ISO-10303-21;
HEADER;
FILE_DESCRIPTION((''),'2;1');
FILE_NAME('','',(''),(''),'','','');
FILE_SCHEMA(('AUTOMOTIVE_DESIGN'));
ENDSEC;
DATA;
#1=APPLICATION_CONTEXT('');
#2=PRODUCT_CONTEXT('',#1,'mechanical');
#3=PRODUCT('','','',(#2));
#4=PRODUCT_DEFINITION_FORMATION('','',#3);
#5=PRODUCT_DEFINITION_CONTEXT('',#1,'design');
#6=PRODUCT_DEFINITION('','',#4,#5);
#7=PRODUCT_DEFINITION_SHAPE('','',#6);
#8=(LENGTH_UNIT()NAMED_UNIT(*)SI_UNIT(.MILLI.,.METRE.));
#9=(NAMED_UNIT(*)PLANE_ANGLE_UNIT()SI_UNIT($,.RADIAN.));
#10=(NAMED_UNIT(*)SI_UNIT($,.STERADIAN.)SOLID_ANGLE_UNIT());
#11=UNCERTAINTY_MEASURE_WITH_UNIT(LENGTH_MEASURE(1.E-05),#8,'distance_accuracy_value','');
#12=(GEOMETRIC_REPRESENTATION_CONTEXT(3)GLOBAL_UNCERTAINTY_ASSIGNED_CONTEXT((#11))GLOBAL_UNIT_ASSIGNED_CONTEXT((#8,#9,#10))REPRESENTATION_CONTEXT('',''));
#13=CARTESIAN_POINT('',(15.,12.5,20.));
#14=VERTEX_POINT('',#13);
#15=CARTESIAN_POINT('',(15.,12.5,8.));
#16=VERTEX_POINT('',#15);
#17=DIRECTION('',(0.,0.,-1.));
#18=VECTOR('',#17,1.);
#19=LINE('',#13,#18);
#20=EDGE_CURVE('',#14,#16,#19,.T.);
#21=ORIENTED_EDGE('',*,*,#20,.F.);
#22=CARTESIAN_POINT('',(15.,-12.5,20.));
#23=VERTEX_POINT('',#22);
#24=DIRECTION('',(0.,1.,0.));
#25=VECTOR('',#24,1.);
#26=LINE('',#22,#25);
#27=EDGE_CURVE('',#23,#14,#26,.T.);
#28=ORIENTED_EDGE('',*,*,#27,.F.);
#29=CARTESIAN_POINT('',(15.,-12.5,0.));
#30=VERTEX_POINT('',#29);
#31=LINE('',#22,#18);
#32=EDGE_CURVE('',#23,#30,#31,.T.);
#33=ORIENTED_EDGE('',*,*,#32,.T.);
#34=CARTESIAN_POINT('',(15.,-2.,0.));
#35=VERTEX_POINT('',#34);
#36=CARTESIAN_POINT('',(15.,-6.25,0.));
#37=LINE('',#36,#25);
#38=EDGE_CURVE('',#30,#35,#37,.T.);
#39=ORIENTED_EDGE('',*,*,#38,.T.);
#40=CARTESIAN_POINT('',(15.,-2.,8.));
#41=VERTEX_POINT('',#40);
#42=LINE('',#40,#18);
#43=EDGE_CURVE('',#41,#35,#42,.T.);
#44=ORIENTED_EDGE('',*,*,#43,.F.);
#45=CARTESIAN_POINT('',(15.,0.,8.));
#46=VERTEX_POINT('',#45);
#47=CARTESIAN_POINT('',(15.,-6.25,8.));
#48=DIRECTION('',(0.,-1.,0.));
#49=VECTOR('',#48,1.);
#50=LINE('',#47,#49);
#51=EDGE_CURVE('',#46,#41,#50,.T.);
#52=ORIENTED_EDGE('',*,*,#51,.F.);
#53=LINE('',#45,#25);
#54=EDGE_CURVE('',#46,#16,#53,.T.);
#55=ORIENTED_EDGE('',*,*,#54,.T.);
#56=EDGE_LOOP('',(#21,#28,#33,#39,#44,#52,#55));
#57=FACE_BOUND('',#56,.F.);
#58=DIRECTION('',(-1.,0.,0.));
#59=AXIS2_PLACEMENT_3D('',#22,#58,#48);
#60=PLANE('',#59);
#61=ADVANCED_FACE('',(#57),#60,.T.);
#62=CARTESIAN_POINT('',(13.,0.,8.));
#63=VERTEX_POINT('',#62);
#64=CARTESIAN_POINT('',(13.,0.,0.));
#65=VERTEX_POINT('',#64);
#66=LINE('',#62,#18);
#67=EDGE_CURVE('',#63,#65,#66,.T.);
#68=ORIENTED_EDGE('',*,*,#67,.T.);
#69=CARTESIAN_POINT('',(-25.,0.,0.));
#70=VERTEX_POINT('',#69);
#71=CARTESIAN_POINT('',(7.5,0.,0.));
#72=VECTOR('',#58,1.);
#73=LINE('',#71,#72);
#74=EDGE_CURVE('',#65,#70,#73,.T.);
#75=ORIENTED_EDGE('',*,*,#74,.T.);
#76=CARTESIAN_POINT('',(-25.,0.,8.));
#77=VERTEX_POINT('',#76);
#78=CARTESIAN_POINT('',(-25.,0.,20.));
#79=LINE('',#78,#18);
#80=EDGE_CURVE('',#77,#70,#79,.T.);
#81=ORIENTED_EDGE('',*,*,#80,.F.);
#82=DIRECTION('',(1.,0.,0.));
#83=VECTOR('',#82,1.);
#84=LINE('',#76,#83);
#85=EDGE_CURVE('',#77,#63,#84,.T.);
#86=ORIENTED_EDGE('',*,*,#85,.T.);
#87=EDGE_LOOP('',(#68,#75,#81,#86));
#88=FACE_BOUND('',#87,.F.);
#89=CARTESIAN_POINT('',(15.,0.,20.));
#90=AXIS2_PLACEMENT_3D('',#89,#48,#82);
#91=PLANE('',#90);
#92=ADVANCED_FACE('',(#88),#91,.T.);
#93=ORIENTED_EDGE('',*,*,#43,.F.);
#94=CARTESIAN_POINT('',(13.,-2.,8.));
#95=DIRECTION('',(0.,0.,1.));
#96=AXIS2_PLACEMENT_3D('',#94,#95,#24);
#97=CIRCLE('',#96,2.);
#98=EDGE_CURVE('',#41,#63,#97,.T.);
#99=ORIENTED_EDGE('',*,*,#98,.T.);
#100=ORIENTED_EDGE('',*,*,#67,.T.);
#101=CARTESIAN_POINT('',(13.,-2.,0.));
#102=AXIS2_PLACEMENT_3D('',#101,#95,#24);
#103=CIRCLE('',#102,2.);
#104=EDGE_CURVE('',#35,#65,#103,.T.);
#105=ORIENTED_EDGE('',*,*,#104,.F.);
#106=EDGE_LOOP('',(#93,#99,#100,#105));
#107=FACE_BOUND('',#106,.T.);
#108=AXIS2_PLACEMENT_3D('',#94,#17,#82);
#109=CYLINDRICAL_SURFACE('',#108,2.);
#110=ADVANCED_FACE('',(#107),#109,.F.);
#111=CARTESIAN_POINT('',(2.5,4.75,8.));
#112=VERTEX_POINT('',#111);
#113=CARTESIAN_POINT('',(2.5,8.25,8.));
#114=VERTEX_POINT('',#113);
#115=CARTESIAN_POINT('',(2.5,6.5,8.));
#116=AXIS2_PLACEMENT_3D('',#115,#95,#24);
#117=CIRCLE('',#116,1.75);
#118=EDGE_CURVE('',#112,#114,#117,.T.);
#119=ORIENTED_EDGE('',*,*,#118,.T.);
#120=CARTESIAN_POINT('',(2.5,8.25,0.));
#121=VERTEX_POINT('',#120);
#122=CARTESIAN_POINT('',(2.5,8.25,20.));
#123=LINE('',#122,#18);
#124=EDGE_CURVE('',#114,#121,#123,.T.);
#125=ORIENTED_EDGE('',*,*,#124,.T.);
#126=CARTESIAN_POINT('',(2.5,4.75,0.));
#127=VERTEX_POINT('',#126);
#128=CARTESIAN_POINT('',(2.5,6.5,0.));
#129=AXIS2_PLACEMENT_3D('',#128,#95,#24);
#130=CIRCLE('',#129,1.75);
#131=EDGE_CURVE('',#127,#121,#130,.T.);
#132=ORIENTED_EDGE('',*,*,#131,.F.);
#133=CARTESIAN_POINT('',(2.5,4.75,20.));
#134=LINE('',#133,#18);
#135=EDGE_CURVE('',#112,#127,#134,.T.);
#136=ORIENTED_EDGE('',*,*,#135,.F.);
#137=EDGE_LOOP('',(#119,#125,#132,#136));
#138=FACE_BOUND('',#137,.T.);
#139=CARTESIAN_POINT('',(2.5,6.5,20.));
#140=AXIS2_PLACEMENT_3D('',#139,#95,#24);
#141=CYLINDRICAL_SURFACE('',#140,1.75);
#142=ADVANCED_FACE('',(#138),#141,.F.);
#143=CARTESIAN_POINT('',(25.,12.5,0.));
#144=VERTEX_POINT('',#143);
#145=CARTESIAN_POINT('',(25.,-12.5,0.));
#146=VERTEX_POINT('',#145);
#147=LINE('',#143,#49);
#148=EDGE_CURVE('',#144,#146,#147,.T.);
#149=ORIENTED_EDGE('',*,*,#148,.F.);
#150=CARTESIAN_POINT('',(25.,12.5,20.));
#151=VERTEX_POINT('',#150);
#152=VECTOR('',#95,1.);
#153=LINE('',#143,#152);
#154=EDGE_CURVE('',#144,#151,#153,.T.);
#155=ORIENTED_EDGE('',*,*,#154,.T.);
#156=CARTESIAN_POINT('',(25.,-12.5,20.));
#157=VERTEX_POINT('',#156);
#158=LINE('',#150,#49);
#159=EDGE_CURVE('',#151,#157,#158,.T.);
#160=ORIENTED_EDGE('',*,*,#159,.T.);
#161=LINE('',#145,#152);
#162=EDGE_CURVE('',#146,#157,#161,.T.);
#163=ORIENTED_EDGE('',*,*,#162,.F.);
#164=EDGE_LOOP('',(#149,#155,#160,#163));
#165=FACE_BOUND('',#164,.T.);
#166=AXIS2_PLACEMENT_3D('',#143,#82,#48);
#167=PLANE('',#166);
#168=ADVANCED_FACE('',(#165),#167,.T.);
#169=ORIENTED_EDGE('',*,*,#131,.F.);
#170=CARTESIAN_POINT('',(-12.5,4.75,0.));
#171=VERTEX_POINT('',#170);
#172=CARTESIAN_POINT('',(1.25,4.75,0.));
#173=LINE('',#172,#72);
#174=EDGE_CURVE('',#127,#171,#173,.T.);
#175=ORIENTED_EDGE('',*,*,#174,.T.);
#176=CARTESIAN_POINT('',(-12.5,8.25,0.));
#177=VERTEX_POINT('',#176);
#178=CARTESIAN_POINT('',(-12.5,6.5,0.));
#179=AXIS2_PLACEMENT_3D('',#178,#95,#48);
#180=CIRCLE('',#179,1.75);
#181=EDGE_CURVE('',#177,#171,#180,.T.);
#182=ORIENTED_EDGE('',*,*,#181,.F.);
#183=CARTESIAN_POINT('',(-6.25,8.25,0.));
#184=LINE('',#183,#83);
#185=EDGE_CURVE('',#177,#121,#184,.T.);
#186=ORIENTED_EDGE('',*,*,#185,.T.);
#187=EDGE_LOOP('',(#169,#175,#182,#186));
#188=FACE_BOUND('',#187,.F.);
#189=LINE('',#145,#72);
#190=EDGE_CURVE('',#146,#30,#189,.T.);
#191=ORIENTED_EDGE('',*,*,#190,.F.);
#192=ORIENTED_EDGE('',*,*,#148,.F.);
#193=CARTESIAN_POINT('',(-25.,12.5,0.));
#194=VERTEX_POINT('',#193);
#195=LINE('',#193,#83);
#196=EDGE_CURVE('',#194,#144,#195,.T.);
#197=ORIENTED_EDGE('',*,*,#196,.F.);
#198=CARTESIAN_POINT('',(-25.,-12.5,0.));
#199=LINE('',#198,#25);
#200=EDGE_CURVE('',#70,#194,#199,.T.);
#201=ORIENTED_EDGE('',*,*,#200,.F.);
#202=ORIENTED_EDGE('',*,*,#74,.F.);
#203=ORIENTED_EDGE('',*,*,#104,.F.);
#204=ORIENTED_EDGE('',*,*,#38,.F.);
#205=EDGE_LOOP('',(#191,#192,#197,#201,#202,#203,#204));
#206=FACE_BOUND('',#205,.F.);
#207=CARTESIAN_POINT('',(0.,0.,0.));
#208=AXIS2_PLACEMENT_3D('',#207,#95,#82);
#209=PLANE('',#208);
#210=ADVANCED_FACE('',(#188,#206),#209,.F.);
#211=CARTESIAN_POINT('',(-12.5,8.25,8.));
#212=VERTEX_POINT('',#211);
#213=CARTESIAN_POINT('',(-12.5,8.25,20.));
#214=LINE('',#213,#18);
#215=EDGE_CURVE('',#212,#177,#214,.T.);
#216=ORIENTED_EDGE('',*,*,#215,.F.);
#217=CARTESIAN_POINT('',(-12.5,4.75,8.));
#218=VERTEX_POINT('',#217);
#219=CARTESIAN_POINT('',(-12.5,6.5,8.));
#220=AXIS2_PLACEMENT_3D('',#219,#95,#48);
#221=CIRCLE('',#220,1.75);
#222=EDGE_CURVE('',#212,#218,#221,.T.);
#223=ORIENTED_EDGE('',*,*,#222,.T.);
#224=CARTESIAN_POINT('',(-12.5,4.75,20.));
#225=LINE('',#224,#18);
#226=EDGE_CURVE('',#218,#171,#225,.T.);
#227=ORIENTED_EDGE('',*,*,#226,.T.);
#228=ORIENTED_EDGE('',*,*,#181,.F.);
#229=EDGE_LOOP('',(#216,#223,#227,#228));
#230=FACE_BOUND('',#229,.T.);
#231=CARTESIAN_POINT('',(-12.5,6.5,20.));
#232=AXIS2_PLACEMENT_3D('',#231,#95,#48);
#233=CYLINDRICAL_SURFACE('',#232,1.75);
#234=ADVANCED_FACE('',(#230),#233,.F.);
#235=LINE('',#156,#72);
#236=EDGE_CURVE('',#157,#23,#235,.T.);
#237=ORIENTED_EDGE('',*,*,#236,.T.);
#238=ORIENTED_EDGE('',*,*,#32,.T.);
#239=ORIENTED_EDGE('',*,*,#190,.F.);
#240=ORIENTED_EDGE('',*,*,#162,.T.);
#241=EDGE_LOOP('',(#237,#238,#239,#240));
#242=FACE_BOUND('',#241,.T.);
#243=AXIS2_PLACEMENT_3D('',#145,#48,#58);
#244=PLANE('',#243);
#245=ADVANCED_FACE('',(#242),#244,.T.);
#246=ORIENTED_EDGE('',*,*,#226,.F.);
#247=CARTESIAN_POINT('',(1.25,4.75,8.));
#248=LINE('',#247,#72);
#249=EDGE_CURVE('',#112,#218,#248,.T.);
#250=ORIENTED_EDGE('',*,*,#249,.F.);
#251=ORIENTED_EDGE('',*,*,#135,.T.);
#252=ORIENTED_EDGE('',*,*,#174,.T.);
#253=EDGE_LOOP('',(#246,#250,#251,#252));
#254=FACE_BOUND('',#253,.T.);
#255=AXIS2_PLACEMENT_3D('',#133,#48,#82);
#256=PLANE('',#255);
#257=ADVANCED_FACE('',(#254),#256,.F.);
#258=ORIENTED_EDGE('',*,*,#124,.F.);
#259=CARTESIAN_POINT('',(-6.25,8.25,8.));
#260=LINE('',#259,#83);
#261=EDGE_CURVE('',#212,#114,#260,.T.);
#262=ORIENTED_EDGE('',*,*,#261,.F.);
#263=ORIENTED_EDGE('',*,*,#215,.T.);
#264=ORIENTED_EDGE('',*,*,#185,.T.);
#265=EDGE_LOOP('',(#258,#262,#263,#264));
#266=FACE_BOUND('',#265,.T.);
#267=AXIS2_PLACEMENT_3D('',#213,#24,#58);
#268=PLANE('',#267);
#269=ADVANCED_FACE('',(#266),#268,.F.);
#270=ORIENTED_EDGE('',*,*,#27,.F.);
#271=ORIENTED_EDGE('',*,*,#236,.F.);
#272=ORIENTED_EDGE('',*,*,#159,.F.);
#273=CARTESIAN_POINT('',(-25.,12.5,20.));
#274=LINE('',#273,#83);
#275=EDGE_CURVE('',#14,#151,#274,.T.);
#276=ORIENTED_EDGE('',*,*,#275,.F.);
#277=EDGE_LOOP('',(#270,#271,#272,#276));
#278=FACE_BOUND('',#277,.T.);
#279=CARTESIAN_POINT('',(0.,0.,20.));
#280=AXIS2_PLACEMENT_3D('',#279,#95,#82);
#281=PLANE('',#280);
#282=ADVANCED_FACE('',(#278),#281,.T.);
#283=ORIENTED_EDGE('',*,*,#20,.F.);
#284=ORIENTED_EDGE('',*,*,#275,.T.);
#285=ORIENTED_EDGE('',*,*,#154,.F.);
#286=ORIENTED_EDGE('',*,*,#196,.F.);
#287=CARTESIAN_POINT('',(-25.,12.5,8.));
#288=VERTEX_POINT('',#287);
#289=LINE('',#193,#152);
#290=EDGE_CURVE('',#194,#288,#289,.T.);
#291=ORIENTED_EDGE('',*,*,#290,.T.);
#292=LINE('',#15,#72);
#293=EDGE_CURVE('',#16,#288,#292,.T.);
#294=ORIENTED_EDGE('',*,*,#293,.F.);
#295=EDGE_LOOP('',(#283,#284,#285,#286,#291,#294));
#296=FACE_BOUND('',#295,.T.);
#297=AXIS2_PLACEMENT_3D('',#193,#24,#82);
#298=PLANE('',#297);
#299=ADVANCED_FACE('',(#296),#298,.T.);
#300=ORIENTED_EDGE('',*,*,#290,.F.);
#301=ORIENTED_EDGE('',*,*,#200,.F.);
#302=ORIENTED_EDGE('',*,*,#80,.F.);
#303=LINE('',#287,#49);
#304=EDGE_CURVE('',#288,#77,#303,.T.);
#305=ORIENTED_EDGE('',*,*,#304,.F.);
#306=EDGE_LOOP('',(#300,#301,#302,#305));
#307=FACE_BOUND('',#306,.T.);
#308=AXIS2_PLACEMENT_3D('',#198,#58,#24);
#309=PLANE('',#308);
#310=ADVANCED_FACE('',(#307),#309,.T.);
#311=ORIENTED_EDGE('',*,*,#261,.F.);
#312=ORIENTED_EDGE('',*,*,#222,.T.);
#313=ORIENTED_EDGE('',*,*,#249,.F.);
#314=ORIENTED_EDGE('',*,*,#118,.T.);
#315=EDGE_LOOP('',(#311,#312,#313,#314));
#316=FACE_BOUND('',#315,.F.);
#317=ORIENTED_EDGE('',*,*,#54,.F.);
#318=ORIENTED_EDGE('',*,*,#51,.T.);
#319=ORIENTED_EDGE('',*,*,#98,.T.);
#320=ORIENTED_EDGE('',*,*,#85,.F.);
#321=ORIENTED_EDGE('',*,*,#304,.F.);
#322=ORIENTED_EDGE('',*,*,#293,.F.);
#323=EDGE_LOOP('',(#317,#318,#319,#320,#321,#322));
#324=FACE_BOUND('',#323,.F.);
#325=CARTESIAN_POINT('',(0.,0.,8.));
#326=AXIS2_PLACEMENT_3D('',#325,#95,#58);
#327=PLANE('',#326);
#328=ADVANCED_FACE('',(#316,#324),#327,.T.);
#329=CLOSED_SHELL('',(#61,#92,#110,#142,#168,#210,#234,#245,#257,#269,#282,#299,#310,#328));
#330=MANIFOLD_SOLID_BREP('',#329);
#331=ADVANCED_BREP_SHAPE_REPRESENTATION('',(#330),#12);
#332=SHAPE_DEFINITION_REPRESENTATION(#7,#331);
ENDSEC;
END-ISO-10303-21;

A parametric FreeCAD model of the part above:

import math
import FreeCAD as App
import Part
import Sketcher
from FreeCAD import Vector


def edges_at(feature, points):
    """Names of the edges that pass closest to the given points."""
    edges = feature.Shape.Edges
    near = lambda p: min(range(len(edges)), key=lambda i: edges[i].distToShape(Part.Vertex(*p))[0])
    return sorted({f"Edge{near(p) + 1}" for p in points})


def add_polygon(sketch, points):
    """Adds a closed chain of lines whose ends are joined by coincident constraints."""
    first, n = sketch.GeometryCount, len(points)
    for a, b in zip(points, points[1:] + points[:1]):
        sketch.addGeometry(Part.LineSegment(App.Vector(*a, 0), App.Vector(*b, 0)), False)
    for i in range(n):
        sketch.addConstraint(Sketcher.Constraint("Coincident", first + i, 2, first + (i + 1) % n, 1))

doc = App.newDocument("Part")
body = doc.addObject("PartDesign::Body", "Body")

# Sketch on XY plane
sketch1 = doc.addObject("Sketcher::SketchObject", "Sketch")
body.addObject(sketch1)
sketch1.AttachmentSupport = (doc.XY_Plane, [""])
sketch1.MapMode = "FlatFace"
add_polygon(sketch1, [(25, 12.5), (-25, 12.5), (-25, -12.5), (25, -12.5)])  # lines 0-3
sketch1.addConstraint(Sketcher.Constraint("Horizontal", 0))
sketch1.addConstraint(Sketcher.Constraint("Vertical", 1))
sketch1.addConstraint(Sketcher.Constraint("Horizontal", 2))
sketch1.addConstraint(Sketcher.Constraint("Vertical", 3))
sketch1.addConstraint(Sketcher.Constraint("Symmetric", 0, 2, 2, 2, -1, 1))
sketch1.addConstraint(Sketcher.Constraint("DistanceX", 0, 2, 0, 1, 50.0))
sketch1.addConstraint(Sketcher.Constraint("DistanceY", 1, 2, 1, 1, 25.0))
pad1 = doc.addObject("PartDesign::Pad", "Pad")
body.addObject(pad1)
pad1.Profile = sketch1
pad1.Length = 20

# Sketch on XY plane
sketch2 = doc.addObject("Sketcher::SketchObject", "Sketch001")
body.addObject(sketch2)
sketch2.AttachmentSupport = (doc.XY_Plane, [""])
sketch2.MapMode = "FlatFace"
sketch2.AttachmentOffset = App.Placement(Vector(0, 0, 20), App.Rotation())
sketch2.addGeometry(Part.ArcOfCircle(Part.Circle(Vector(2.5, -6.5, 0), Vector(0, 0, 1), 1.75), math.radians(-90), math.radians(90)), False)
sketch2.addGeometry(Part.LineSegment(Vector(2.5, -4.75, 0), Vector(-12.5, -4.75, 0)), False)
sketch2.addGeometry(Part.ArcOfCircle(Part.Circle(Vector(-12.5, -6.5, 0), Vector(0, 0, 1), 1.75), math.radians(90), math.radians(270)), False)
sketch2.addGeometry(Part.LineSegment(Vector(-12.5, -8.25, 0), Vector(2.5, -8.25, 0)), False)
sketch2.addConstraint(Sketcher.Constraint("Tangent", 0, 2, 1, 1))
sketch2.addConstraint(Sketcher.Constraint("Tangent", 1, 2, 2, 1))
sketch2.addConstraint(Sketcher.Constraint("Tangent", 2, 2, 3, 1))
sketch2.addConstraint(Sketcher.Constraint("Tangent", 3, 2, 0, 1))
sketch2.addConstraint(Sketcher.Constraint("Horizontal", 1))
sketch2.addConstraint(Sketcher.Constraint("Horizontal", 3))
sketch2.addConstraint(Sketcher.Constraint("DistanceX", 1, 2, 1, 1, 15.0))
sketch2.addConstraint(Sketcher.Constraint("Radius", 0, 1.75))
sketch2.addConstraint(Sketcher.Constraint("DistanceX", -1, 1, 0, 3, 2.5))
sketch2.addConstraint(Sketcher.Constraint("DistanceY", 0, 3, -1, 1, 6.5))
pocket1 = doc.addObject("PartDesign::Pocket", "Pocket")
body.addObject(pocket1)
pocket1.Profile = sketch2
pocket1.Type = "ThroughAll"

# Sketch on XY plane
sketch3 = doc.addObject("Sketcher::SketchObject", "Sketch002")
body.addObject(sketch3)
sketch3.AttachmentSupport = (doc.XY_Plane, [""])
sketch3.MapMode = "FlatFace"
sketch3.AttachmentOffset = App.Placement(Vector(0, 0, 20), App.Rotation())
add_polygon(sketch3, [(-25, 0), (15, 0), (15, 12.5), (-25, 12.5)])  # lines 0-3
sketch3.addConstraint(Sketcher.Constraint("Horizontal", 0))
sketch3.addConstraint(Sketcher.Constraint("Vertical", 1))
sketch3.addConstraint(Sketcher.Constraint("Horizontal", 2))
sketch3.addConstraint(Sketcher.Constraint("Vertical", 3))
sketch3.addConstraint(Sketcher.Constraint("PointOnObject", 0, 2, -1))
sketch3.addConstraint(Sketcher.Constraint("DistanceX", 0, 1, 0, 2, 40.0))
sketch3.addConstraint(Sketcher.Constraint("DistanceY", 1, 1, 1, 2, 12.5))
sketch3.addConstraint(Sketcher.Constraint("DistanceX", -1, 1, 0, 2, 15.0))
pocket2 = doc.addObject("PartDesign::Pocket", "Pocket001")
body.addObject(pocket2)
pocket2.Profile = sketch3
pocket2.Type = "ThroughAll"

# Sketch on XY plane
sketch4 = doc.addObject("Sketcher::SketchObject", "Sketch003")
body.addObject(sketch4)
sketch4.AttachmentSupport = (doc.XY_Plane, [""])
sketch4.MapMode = "FlatFace"
sketch4.AttachmentOffset = App.Placement(Vector(0, 0, 20), App.Rotation())
add_polygon(sketch4, [(-25, -12.5), (15, -12.5), (15, 0), (-25, 0)])  # lines 0-3
sketch4.addConstraint(Sketcher.Constraint("Horizontal", 0))
sketch4.addConstraint(Sketcher.Constraint("Vertical", 1))
sketch4.addConstraint(Sketcher.Constraint("Horizontal", 2))
sketch4.addConstraint(Sketcher.Constraint("Vertical", 3))
sketch4.addConstraint(Sketcher.Constraint("PointOnObject", 1, 2, -1))
sketch4.addConstraint(Sketcher.Constraint("DistanceX", 0, 1, 0, 2, 40.0))
sketch4.addConstraint(Sketcher.Constraint("DistanceY", 1, 1, 1, 2, 12.5))
sketch4.addConstraint(Sketcher.Constraint("DistanceX", -1, 1, 0, 2, 15.0))
pocket3 = doc.addObject("PartDesign::Pocket", "Pocket002")
body.addObject(pocket3)
pocket3.Profile = sketch4
pocket3.Length = 12
doc.recompute()

fillet = doc.addObject("PartDesign::Fillet", "Fillet")
body.addObject(fillet)
fillet.Base = (pocket3, edges_at(pocket3, [(15, 0, 4)]))
fillet.Radius = 2
doc.recompute()

mirrored = doc.addObject("PartDesign::Mirrored", "Mirrored")
body.addObject(mirrored)
mirrored.Originals = [pad1, pocket1, pocket2, pocket3, fillet]
mirrored.MirrorPlane = (doc.XZ_Plane, [""])
body.Tip = mirrored

doc.recompute()
